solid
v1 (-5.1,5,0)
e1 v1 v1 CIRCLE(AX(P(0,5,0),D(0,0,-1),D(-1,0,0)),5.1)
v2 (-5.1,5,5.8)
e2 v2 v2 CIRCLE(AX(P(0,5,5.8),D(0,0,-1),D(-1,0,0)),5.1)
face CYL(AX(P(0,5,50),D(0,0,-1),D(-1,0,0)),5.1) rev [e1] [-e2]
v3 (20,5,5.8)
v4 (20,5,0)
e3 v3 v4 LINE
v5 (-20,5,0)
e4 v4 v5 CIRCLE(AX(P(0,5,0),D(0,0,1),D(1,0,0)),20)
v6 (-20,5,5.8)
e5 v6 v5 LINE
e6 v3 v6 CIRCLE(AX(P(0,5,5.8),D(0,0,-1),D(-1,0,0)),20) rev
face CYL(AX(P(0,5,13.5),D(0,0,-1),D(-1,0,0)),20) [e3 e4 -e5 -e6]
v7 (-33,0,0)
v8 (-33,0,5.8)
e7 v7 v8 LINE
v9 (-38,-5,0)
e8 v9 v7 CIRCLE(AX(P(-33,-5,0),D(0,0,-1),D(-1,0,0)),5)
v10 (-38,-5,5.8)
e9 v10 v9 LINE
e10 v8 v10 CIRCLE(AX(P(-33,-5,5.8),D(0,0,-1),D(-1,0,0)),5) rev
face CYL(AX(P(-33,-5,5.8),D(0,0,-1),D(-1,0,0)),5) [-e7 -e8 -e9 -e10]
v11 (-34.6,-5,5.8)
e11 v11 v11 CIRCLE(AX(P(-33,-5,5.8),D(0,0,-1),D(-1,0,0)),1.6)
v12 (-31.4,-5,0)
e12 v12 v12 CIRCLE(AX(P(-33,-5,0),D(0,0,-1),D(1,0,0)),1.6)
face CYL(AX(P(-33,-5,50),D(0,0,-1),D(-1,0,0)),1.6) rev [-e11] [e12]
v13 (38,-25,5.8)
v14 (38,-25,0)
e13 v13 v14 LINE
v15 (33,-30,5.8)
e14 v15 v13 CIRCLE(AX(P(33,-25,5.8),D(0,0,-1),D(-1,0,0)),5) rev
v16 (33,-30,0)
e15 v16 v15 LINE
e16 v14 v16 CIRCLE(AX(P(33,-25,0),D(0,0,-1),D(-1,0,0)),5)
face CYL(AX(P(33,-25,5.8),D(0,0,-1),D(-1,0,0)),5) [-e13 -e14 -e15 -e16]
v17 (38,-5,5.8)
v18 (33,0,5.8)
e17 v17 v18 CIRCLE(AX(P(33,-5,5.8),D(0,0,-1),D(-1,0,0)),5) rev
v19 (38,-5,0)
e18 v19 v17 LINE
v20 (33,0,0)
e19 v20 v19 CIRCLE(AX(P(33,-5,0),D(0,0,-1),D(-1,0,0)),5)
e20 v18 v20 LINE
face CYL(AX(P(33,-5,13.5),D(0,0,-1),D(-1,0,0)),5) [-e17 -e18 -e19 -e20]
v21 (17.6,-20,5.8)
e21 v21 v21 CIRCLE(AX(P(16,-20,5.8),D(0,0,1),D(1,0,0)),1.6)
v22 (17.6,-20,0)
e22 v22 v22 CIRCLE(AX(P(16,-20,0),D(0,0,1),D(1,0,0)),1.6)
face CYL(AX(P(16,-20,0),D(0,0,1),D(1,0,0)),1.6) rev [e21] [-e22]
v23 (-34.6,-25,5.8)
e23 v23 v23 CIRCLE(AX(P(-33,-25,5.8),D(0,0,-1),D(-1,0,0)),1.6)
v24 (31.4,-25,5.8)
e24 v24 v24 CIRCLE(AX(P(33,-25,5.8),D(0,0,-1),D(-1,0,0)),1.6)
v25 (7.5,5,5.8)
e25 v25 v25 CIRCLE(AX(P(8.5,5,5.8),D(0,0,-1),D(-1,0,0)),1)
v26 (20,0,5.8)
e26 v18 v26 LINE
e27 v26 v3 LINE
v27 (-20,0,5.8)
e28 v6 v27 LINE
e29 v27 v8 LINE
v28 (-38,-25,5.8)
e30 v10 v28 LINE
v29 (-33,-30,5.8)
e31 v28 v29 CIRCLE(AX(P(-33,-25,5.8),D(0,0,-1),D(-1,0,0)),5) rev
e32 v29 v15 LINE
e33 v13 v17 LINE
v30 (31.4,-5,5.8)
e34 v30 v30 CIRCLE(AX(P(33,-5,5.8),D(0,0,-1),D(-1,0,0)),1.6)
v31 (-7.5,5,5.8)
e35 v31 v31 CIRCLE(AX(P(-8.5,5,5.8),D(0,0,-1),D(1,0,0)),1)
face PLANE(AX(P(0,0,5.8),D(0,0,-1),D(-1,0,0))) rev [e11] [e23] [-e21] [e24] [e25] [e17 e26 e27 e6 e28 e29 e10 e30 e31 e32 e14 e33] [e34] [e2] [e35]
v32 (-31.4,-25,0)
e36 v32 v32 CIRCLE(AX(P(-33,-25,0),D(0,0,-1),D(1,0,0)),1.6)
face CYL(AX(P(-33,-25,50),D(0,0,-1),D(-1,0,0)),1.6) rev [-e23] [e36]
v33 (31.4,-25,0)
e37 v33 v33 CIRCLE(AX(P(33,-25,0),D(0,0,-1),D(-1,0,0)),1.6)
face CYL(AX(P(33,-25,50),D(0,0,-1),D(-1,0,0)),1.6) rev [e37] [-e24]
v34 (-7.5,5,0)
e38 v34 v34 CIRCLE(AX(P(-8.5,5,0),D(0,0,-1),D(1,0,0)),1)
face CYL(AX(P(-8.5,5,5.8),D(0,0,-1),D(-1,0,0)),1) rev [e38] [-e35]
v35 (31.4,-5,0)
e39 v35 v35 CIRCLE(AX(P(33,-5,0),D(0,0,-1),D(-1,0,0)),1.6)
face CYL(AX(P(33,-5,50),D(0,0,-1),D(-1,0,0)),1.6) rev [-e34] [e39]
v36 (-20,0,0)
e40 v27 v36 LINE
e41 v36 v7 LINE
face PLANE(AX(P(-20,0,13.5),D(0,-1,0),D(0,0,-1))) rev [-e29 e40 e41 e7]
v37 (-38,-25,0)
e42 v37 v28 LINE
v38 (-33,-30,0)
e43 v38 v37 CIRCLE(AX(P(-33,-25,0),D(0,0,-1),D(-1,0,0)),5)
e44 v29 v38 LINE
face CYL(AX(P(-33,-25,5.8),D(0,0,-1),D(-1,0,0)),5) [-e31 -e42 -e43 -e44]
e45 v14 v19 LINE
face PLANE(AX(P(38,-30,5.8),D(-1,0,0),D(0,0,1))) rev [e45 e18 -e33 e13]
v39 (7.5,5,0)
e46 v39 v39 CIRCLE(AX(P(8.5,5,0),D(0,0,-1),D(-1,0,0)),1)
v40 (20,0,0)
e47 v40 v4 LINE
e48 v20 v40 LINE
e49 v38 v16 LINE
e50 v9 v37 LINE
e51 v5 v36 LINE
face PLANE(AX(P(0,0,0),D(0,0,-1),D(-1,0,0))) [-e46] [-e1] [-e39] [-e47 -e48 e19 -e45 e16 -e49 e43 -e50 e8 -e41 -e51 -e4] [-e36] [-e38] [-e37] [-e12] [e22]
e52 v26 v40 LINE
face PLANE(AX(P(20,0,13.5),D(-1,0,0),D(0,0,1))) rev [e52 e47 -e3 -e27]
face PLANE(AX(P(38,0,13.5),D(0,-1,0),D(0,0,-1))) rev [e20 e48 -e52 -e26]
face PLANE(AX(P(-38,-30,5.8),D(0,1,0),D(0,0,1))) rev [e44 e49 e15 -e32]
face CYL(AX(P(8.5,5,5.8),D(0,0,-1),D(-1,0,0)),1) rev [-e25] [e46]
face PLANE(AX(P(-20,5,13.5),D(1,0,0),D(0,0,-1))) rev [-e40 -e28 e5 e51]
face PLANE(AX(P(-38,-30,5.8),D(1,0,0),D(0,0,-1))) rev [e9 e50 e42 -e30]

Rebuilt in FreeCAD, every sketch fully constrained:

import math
import FreeCAD as App
import Part
import Sketcher

V = App.Vector
Q = App.Units.Quantity


def edges_at(feature, points):
    """Names of the edges that pass closest to the given points."""
    edges = feature.Shape.Edges
    near = lambda p: min(range(len(edges)), key=lambda i: edges[i].distToShape(Part.Vertex(*p))[0])
    return sorted({f"Edge{near(p) + 1}" for p in points})


def add_polygon(sketch, points):
    """Adds a closed chain of lines whose ends are joined by coincident constraints."""
    first, n = sketch.GeometryCount, len(points)
    for a, b in zip(points, points[1:] + points[:1]):
        sketch.addGeometry(Part.LineSegment(App.Vector(*a, 0), App.Vector(*b, 0)), False)
    for i in range(n):
        sketch.addConstraint(Sketcher.Constraint("Coincident", first + i, 2, first + (i + 1) % n, 1))

doc = App.newDocument("Part")
body = doc.addObject("PartDesign::Body", "Body")

sketch1 = body.newObject("Sketcher::SketchObject", "Sketch")
sketch1.AttachmentSupport = (doc.getObject("XY_Plane"), [""])
sketch1.MapMode = "FlatFace"
add_polygon(sketch1, [(-38, 30), (-38, -30), (38, -30), (38, 30)])
sketch1.addConstraint([
    Sketcher.Constraint("Vertical", 0),
    Sketcher.Constraint("Horizontal", 1),
    Sketcher.Constraint("Vertical", 2),
    Sketcher.Constraint("Horizontal", 3),
    Sketcher.Constraint("Symmetric", 0, 2, 2, 2, -1, 1),
    Sketcher.Constraint("DistanceX", 1, 1, 1, 2, Q("76 mm")),
    Sketcher.Constraint("DistanceY", 0, 2, 0, 1, Q("60 mm")),
])
pad1 = body.newObject("PartDesign::Pad", "Pad")
pad1.Profile = sketch1
pad1.Length = 5.8

sketch2 = body.newObject("Sketcher::SketchObject", "Sketch001")
sketch2.AttachmentSupport = (doc.getObject("XY_Plane"), [""])
sketch2.MapMode = "FlatFace"
sketch2.addGeometry([
    Part.Circle(V(0, 5, 0), V(0, 0, 1), 5.1),
    Part.Circle(V(33, -5, 0), V(0, 0, 1), 1.6),
    Part.Circle(V(33, -25, 0), V(0, 0, 1), 1.6),
    Part.Circle(V(-33, -25, 0), V(0, 0, 1), 1.6),
    Part.Circle(V(-33, -5, 0), V(0, 0, 1), 1.6),
], False)
sketch2.addConstraint([
    Sketcher.Constraint("Equal", 1, 2),
    Sketcher.Constraint("Equal", 2, 3),
    Sketcher.Constraint("Equal", 3, 4),
    Sketcher.Constraint("Symmetric", 2, 3, 3, 3, -2),
    Sketcher.Constraint("Symmetric", 1, 3, 4, 3, -2),
    Sketcher.Constraint("PointOnObject", 0, 3, -2),
    Sketcher.Constraint("Vertical", 1, 3, 2, 3),
    Sketcher.Constraint("Diameter", 0, Q("10.2 mm")),
    Sketcher.Constraint("Diameter", 1, Q("3.2 mm")),
    Sketcher.Constraint("DistanceY", -1, 1, 0, 3, Q("5 mm")),
    Sketcher.Constraint("DistanceX", -1, 1, 1, 3, Q("33 mm")),
    Sketcher.Constraint("DistanceY", 1, 3, -1, 1, Q("5 mm")),
    Sketcher.Constraint("DistanceY", 2, 3, -1, 1, Q("25 mm")),
])
pocket1 = body.newObject("PartDesign::Pocket", "Pocket")
pocket1.Profile = sketch2
pocket1.Length = 50
pocket1.Reversed = True
doc.recompute()

fillet = body.newObject("PartDesign::Fillet", "Fillet")
fillet.Base = (pocket1, edges_at(pocket1, [
    (38, -30, 2.9),
    (-38, -30, 2.9),
    (-38, 30, 2.9),
    (38, 30, 2.9),
]))
fillet.Radius = 5

sketch3 = body.newObject("Sketcher::SketchObject", "Sketch002")
sketch3.AttachmentSupport = (doc.getObject("XY_Plane"), [""])
sketch3.MapMode = "FlatFace"
sketch3.addGeometry([
    Part.LineSegment(V(38, 0, 0), V(20, 0, 0)),
    Part.LineSegment(V(20, 0, 0), V(20, 5, 0)),
    Part.ArcOfCircle(Part.Circle(V(0, 5, 0), V(0, 0, 1), 20), math.radians(0), math.radians(180)),
    Part.LineSegment(V(-20, 5, 0), V(-20, 0, 0)),
    Part.LineSegment(V(-20, 0, 0), V(-38, 0, 0)),
    Part.LineSegment(V(-38, 0, 0), V(-38, 30, 0)),
    Part.LineSegment(V(-38, 30, 0), V(38, 30, 0)),
    Part.LineSegment(V(38, 30, 0), V(38, 0, 0)),
], False)
sketch3.addConstraint([
    Sketcher.Constraint("Coincident", 0, 2, 1, 1),
    Sketcher.Constraint("Tangent", 1, 2, 2, 1),
    Sketcher.Constraint("Tangent", 2, 2, 3, 1),
    Sketcher.Constraint("Coincident", 3, 2, 4, 1),
    Sketcher.Constraint("Coincident", 4, 2, 5, 1),
    Sketcher.Constraint("Coincident", 5, 2, 6, 1),
    Sketcher.Constraint("Coincident", 6, 2, 7, 1),
    Sketcher.Constraint("Coincident", 7, 2, 0, 1),
    Sketcher.Constraint("Horizontal", 0),
    Sketcher.Constraint("Vertical", 1),
    Sketcher.Constraint("Vertical", 3),
    Sketcher.Constraint("Horizontal", 4),
    Sketcher.Constraint("Vertical", 5),
    Sketcher.Constraint("Horizontal", 6),
    Sketcher.Constraint("Vertical", 7),
    Sketcher.Constraint("Symmetric", 0, 2, 3, 2, -1, 1),
    Sketcher.Constraint("Symmetric", 4, 2, 7, 2, -2),
    Sketcher.Constraint("Radius", 2, Q("20 mm")),
    Sketcher.Constraint("DistanceX", 0, 2, 0, 1, Q("18 mm")),
    Sketcher.Constraint("DistanceY", 1, 1, 1, 2, Q("5 mm")),
    Sketcher.Constraint("DistanceY", 5, 1, 5, 2, Q("30 mm")),
])
pocket2 = body.newObject("PartDesign::Pocket", "Pocket001")
pocket2.Profile = sketch3
pocket2.Length = 13.5
pocket2.Reversed = True
doc.recompute()

fillet2 = body.newObject("PartDesign::Fillet", "Fillet001")
fillet2.Base = (pocket2, edges_at(pocket2, [(-38, 0, 2.9), (38, 0, 2.9)]))
fillet2.Radius = 5

sketch4 = body.newObject("Sketcher::SketchObject", "Sketch003")
sketch4.AttachmentSupport = (doc.getObject("XY_Plane"), [""])
sketch4.MapMode = "FlatFace"
sketch4.addGeometry([
    Part.Circle(V(8.5, 5, 0), V(0, 0, 1), 1),
    Part.Circle(V(-8.5, 5, 0), V(0, 0, 1), 1),
], False)
sketch4.addConstraint([
    Sketcher.Constraint("Equal", 0, 1),
    Sketcher.Constraint("Symmetric", 0, 3, 1, 3, -2),
    Sketcher.Constraint("Diameter", 0, Q("2 mm")),
    Sketcher.Constraint("DistanceY", -1, 1, 0, 3, Q("5 mm")),
    Sketcher.Constraint("DistanceX", 1, 3, 0, 3, Q("17 mm")),
])
pocket3 = body.newObject("PartDesign::Pocket", "Pocket002")
pocket3.Profile = sketch4
pocket3.Type = "ThroughAll"
pocket3.Reversed = True

sketch5 = body.newObject("Sketcher::SketchObject", "Sketch004")
sketch5.AttachmentSupport = (doc.getObject("XY_Plane"), [""])
sketch5.MapMode = "FlatFace"
sketch5.AttachmentOffset = App.Placement(V(0, 0, 5.8), App.Rotation())
sketch5.addGeometry(Part.Circle(V(16, -20, 0), V(0, 0, 1), 1.6), False)
sketch5.addConstraint([
    Sketcher.Constraint("Diameter", 0, Q("3.2 mm")),
    Sketcher.Constraint("DistanceX", -1, 1, 0, 3, Q("16 mm")),
    Sketcher.Constraint("DistanceY", 0, 3, -1, 1, Q("20 mm")),
])
pocket4 = body.newObject("PartDesign::Pocket", "Pocket003")
pocket4.Profile = sketch5
pocket4.Type = "ThroughAll"

doc.recompute()
